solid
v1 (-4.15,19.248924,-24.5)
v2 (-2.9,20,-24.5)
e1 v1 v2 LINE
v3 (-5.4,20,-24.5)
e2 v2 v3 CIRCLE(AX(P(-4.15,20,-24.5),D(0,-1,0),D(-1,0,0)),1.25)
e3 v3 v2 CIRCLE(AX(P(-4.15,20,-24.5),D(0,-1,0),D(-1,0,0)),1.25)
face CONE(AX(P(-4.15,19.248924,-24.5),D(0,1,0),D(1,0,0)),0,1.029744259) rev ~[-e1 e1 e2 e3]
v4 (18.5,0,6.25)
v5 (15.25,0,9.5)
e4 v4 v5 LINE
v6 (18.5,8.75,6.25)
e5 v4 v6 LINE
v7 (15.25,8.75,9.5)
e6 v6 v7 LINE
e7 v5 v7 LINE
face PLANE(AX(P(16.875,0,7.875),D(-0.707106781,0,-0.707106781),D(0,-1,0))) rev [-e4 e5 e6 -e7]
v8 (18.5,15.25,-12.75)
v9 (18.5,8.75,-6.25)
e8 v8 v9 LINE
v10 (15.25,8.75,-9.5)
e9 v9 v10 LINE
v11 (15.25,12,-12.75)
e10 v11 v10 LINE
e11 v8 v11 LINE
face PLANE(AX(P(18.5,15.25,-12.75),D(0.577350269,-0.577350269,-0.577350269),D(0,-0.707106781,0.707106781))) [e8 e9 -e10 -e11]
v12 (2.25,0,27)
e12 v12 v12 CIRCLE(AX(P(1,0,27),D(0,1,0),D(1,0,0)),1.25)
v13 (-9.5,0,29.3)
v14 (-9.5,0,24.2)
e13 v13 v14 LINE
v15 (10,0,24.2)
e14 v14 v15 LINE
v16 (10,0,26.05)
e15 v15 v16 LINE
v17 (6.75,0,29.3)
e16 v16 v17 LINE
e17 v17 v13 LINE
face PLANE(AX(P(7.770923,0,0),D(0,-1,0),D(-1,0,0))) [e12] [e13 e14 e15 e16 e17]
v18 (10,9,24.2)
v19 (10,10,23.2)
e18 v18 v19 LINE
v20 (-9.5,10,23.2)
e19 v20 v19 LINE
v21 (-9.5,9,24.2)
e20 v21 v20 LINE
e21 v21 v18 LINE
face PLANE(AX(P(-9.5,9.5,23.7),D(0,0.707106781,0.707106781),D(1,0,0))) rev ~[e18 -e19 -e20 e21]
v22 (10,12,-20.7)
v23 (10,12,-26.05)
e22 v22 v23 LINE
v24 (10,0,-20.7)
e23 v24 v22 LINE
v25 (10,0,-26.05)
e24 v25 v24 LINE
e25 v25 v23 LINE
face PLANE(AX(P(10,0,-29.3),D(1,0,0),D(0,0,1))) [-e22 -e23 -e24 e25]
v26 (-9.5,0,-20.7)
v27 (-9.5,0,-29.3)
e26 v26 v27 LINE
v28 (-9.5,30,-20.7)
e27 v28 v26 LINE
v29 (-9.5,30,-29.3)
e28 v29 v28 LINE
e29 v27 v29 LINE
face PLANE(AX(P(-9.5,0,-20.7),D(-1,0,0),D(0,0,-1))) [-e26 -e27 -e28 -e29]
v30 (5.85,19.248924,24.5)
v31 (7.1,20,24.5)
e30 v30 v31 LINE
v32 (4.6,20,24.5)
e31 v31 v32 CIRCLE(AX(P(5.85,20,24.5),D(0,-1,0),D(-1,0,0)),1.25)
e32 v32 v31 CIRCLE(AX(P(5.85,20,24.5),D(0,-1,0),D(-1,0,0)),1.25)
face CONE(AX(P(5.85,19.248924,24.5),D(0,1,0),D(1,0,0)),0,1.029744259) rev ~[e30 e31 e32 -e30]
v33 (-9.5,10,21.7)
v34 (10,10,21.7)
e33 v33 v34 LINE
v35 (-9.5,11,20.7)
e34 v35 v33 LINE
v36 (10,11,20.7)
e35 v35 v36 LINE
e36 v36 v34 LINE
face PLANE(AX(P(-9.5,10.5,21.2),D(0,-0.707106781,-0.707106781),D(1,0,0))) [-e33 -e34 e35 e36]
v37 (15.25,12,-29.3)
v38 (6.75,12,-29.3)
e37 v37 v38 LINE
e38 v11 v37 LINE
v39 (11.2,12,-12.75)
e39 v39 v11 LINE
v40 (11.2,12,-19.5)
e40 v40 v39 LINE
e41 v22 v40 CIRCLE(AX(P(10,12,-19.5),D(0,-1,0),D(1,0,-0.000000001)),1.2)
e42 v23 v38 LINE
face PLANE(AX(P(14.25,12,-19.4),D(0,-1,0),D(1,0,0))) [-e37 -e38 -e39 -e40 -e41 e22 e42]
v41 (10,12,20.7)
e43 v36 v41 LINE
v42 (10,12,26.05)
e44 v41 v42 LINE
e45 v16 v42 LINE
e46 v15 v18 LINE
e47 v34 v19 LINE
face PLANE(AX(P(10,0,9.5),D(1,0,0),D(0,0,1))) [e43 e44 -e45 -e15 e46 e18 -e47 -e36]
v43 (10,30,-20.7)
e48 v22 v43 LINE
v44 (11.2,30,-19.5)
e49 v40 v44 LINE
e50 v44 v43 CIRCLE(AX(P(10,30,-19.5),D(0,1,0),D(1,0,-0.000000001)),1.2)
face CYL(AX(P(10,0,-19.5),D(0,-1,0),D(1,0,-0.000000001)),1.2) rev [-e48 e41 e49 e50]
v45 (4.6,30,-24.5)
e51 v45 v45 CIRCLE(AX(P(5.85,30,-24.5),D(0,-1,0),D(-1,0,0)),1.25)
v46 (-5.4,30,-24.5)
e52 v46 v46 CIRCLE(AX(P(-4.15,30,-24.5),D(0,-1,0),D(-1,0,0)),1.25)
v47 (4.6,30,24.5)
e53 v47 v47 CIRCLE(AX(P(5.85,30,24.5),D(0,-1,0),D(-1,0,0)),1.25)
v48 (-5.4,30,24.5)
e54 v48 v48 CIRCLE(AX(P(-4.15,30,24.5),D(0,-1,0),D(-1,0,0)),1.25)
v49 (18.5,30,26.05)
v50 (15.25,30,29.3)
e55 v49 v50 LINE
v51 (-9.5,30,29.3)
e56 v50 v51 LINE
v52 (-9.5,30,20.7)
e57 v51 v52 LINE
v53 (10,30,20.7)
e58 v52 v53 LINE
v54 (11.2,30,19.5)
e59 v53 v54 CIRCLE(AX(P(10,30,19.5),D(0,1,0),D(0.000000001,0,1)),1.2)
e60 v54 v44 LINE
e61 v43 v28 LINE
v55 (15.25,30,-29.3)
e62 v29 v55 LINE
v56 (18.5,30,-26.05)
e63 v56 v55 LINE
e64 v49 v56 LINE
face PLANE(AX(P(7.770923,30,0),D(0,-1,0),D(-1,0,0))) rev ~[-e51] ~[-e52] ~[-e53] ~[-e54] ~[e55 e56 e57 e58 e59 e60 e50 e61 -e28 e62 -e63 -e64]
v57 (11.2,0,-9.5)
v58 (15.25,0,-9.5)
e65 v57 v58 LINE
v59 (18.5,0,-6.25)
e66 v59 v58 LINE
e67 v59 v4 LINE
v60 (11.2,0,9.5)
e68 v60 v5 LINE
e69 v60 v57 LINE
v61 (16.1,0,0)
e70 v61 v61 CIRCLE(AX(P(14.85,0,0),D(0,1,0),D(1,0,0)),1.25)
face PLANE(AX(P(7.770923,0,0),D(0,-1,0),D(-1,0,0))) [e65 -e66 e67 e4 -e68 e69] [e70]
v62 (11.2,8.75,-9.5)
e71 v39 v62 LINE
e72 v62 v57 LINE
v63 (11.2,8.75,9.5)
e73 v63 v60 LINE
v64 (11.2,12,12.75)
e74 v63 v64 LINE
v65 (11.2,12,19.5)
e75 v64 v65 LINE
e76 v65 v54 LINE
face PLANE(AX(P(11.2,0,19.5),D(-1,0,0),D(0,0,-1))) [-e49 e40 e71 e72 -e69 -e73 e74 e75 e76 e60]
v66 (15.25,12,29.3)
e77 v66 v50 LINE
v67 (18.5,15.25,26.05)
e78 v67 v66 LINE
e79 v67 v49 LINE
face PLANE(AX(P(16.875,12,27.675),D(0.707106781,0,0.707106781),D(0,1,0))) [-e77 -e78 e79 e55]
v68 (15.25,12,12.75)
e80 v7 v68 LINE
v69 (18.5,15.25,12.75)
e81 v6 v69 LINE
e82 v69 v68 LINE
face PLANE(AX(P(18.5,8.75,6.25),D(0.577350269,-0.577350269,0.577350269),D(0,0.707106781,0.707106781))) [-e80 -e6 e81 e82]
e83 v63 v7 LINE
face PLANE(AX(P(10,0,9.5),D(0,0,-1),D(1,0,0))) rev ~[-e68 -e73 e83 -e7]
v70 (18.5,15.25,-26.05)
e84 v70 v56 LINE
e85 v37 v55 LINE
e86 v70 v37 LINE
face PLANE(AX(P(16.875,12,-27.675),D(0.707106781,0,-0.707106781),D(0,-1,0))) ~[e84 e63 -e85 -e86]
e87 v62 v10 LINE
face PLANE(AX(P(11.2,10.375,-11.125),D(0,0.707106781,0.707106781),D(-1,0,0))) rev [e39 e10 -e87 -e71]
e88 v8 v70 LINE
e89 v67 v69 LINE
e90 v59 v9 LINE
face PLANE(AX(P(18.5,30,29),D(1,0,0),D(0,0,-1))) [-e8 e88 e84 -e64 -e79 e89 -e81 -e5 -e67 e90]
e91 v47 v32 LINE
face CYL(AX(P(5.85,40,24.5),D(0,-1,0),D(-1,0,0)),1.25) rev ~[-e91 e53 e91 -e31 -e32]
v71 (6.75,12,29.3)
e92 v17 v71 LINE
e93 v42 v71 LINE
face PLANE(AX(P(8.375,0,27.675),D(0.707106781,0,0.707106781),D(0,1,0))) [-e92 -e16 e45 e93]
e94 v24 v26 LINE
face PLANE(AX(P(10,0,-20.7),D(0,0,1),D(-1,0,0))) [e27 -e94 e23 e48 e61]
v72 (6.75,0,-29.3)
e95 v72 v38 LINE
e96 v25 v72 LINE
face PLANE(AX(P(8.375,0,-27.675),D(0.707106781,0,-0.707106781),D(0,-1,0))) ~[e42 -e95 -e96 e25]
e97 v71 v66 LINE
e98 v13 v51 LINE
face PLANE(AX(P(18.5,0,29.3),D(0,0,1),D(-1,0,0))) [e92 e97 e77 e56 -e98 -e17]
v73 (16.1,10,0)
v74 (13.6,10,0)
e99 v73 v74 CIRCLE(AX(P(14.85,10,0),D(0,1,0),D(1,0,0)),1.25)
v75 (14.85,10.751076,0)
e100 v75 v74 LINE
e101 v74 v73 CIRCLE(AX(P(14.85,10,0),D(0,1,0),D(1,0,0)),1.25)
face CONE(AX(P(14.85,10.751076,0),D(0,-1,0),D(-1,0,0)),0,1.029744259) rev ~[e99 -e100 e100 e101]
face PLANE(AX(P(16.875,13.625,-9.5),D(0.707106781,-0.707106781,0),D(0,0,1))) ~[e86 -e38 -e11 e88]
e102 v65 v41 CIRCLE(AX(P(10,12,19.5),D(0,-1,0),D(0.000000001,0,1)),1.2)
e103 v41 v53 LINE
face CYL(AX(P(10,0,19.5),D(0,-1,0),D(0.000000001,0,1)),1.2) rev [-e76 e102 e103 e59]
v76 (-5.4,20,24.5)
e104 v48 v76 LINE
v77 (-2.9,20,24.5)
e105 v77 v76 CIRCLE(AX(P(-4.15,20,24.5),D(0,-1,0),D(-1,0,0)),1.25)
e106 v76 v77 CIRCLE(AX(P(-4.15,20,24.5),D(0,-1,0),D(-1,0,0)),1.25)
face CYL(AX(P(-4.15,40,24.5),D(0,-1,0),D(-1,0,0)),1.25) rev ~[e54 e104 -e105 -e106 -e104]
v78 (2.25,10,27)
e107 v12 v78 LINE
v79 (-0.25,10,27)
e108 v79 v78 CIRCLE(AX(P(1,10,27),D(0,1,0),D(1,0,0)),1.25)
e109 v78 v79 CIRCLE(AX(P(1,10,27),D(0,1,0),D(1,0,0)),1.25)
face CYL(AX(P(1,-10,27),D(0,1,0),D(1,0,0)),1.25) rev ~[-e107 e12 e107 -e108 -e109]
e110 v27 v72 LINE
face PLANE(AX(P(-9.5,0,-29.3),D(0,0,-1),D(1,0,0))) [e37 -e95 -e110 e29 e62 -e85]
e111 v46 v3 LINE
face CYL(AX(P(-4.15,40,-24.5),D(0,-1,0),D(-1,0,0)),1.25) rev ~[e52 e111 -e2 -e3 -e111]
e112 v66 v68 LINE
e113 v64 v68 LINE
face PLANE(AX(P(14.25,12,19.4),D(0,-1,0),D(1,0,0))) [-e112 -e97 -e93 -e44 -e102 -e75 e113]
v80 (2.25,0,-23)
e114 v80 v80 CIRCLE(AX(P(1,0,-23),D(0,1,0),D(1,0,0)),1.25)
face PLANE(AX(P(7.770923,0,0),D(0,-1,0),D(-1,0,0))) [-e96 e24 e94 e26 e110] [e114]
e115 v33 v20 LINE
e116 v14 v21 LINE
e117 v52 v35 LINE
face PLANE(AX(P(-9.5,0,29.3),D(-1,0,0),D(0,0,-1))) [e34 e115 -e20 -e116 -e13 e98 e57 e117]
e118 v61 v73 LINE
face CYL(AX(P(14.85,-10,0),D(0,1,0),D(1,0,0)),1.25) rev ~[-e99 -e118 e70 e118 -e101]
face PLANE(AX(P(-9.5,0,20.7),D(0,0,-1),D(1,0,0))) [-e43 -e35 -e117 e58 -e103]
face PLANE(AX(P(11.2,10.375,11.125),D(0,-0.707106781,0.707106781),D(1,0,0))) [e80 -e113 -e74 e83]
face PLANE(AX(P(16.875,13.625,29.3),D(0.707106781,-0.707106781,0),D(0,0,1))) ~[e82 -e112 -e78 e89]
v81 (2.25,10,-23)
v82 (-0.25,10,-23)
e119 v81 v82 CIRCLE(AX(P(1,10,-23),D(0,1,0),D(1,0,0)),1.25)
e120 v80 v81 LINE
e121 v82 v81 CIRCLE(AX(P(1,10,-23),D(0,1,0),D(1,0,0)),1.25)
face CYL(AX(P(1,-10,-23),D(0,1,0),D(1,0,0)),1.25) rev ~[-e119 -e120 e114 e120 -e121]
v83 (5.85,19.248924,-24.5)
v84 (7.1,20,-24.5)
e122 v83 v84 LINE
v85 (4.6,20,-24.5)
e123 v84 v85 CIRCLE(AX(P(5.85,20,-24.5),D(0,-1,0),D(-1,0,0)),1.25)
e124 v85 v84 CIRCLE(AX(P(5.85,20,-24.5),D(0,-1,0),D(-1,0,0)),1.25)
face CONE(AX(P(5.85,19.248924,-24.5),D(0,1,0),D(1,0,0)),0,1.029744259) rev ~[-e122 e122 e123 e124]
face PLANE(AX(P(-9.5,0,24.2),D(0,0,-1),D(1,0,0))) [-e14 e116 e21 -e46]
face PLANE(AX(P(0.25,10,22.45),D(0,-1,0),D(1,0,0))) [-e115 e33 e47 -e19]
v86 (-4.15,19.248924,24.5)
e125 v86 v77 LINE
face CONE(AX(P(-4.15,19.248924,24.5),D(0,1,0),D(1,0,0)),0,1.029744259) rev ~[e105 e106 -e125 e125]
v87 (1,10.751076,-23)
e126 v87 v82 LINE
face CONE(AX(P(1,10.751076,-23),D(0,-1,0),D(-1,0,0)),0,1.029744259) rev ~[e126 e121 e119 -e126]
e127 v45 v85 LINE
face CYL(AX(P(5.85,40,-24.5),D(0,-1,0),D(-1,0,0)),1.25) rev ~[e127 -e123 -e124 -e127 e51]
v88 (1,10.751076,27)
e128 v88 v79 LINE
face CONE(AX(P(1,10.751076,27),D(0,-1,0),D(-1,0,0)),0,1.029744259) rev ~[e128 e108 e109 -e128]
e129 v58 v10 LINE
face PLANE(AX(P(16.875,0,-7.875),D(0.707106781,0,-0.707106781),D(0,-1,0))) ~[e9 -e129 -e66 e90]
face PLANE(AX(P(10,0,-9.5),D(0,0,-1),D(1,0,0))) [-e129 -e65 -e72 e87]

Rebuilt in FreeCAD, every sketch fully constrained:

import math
import FreeCAD as App
import Part
import Sketcher
from FreeCAD import Vector
Q = App.Units.Quantity


def edges_at(feature, points):
    """Names of the edges that pass closest to the given points."""
    edges = feature.Shape.Edges
    near = lambda p: min(range(len(edges)), key=lambda i: edges[i].distToShape(Part.Vertex(*p))[0])
    return sorted({f"Edge{near(p) + 1}" for p in points})


def add_polygon(sketch, points):
    """Adds a closed chain of lines whose ends are joined by coincident constraints."""
    first, n = sketch.GeometryCount, len(points)
    for a, b in zip(points, points[1:] + points[:1]):
        sketch.addGeometry(Part.LineSegment(App.Vector(*a, 0), App.Vector(*b, 0)), False)
    for i in range(n):
        sketch.addConstraint(Sketcher.Constraint("Coincident", first + i, 2, first + (i + 1) % n, 1))

doc = App.newDocument("Part")
body = doc.addObject("PartDesign::Body", "Body")

# Sketch on XZ plane
sketch1 = body.newObject("Sketcher::SketchObject", "Sketch")
sketch1.AttachmentSupport = (doc.getObject("XZ_Plane"), [""])
sketch1.MapMode = "FlatFace"
sketch1.addGeometry([
    Part.LineSegment(Vector(-9.5, -29.3, 0), Vector(-9.5, -20.7, 0)),  # 0
    Part.LineSegment(Vector(-9.5, -20.7, 0), Vector(10, -20.7, 0)),  # 1
    Part.ArcOfCircle(Part.Circle(Vector(10, -19.5, 0), Vector(0, 0, 1), 1.2), math.radians(-90), math.radians(0)),  # 2
    Part.LineSegment(Vector(11.2, -19.5, 0), Vector(11.2, 19.5, 0)),  # 3
    Part.ArcOfCircle(Part.Circle(Vector(10, 19.5, 0), Vector(0, 0, 1), 1.2), math.radians(0), math.radians(90)),  # 4
    Part.LineSegment(Vector(10, 20.7, 0), Vector(-9.5, 20.7, 0)),  # 5
    Part.LineSegment(Vector(-9.5, 20.7, 0), Vector(-9.5, 29.3, 0)),  # 6
    Part.LineSegment(Vector(-9.5, 29.3, 0), Vector(18.5, 29.3, 0)),  # 7
    Part.LineSegment(Vector(18.5, 29.3, 0), Vector(18.5, -29.3, 0)),  # 8
    Part.LineSegment(Vector(18.5, -29.3, 0), Vector(-9.5, -29.3, 0)),  # 9
], False)
sketch1.addConstraint([
    Sketcher.Constraint("Coincident", 0, 2, 1, 1),
    Sketcher.Constraint("Tangent", 1, 2, 2, 1),
    Sketcher.Constraint("Tangent", 2, 2, 3, 1),
    Sketcher.Constraint("Tangent", 3, 2, 4, 1),
    Sketcher.Constraint("Tangent", 4, 2, 5, 1),
    Sketcher.Constraint("Coincident", 5, 2, 6, 1),
    Sketcher.Constraint("Coincident", 6, 2, 7, 1),
    Sketcher.Constraint("Coincident", 7, 2, 8, 1),
    Sketcher.Constraint("Coincident", 8, 2, 9, 1),
    Sketcher.Constraint("Coincident", 9, 2, 0, 1),
    Sketcher.Constraint("Vertical", 0),
    Sketcher.Constraint("Horizontal", 1),
    Sketcher.Constraint("Vertical", 3),
    Sketcher.Constraint("Horizontal", 5),
    Sketcher.Constraint("Vertical", 6),
    Sketcher.Constraint("Horizontal", 7),
    Sketcher.Constraint("Vertical", 8),
    Sketcher.Constraint("Horizontal", 9),
    Sketcher.Constraint("Equal", 2, 4),
    Sketcher.Constraint("Symmetric", 0, 2, 5, 2, -1),
    Sketcher.Constraint("Equal", 0, 6),
    Sketcher.Constraint("Radius", 2, Q("1.2 mm")),
    Sketcher.Constraint("DistanceX", 7, 1, 7, 2, Q("28 mm")),
    Sketcher.Constraint("DistanceY", 3, 1, 3, 2, Q("39 mm")),
    Sketcher.Constraint("DistanceX", 1, 1, 1, 2, Q("19.5 mm")),
    Sketcher.Constraint("DistanceY", 0, 1, 0, 2, Q("8.6 mm")),
    Sketcher.Constraint("DistanceX", -1, 1, 2, 3, Q("10 mm")),
])
pad1 = body.newObject("PartDesign::Pad", "Pad")
pad1.Profile = sketch1
pad1.Length = 30
pad1.Reversed = True

# Sketch on XZ plane
sketch2 = body.newObject("Sketcher::SketchObject", "Sketch001")
sketch2.AttachmentSupport = (doc.getObject("XZ_Plane"), [""])
sketch2.MapMode = "FlatFace"
add_polygon(sketch2, [(10, 29), (10, 10), (18, 10), (18, 29)])  # lines 0-3
add_polygon(sketch2, [(10, -10), (10, -29), (18, -29), (18, -10)])  # lines 4-7
sketch2.addConstraint([
    Sketcher.Constraint("Vertical", 0),
    Sketcher.Constraint("Horizontal", 1),
    Sketcher.Constraint("Vertical", 2),
    Sketcher.Constraint("Horizontal", 3),
    Sketcher.Constraint("Vertical", 4),
    Sketcher.Constraint("Horizontal", 5),
    Sketcher.Constraint("Vertical", 6),
    Sketcher.Constraint("Horizontal", 7),
    Sketcher.Constraint("Symmetric", 3, 2, 4, 2, -1),
    Sketcher.Constraint("Symmetric", 1, 2, 6, 2, -1),
    Sketcher.Constraint("DistanceX", 1, 1, 1, 2, Q("8.5 mm")),
    Sketcher.Constraint("DistanceY", 0, 2, 0, 1, Q("19.8 mm")),
    Sketcher.Constraint("DistanceX", -1, 1, 0, 2, Q("10 mm")),
    Sketcher.Constraint("DistanceY", 6, 2, 1, 2, Q("19 mm")),
])
pocket1 = body.newObject("PartDesign::Pocket", "Pocket")
pocket1.Profile = sketch2
pocket1.Length = 12

# Sketch on XZ plane
sketch3 = body.newObject("Sketcher::SketchObject", "Sketch002")
sketch3.AttachmentSupport = (doc.getObject("XZ_Plane"), [""])
sketch3.MapMode = "FlatFace"
sketch3.addGeometry([
    Part.Circle(Vector(1, -23, 0), Vector(0, 0, 1), 1.2),
    Part.Circle(Vector(14.8, 0, 0), Vector(0, 0, 1), 1.2),
    Part.Circle(Vector(1, 27, 0), Vector(0, 0, 1), 1.2),
], False)
sketch3.addConstraint([
    Sketcher.Constraint("Equal", 0, 1),
    Sketcher.Constraint("Equal", 1, 2),
    Sketcher.Constraint("PointOnObject", 1, 3, -1),
    Sketcher.Constraint("Vertical", 0, 3, 2, 3),
    Sketcher.Constraint("Diameter", 0, Q("2.5 mm")),
    Sketcher.Constraint("DistanceX", -1, 1, 0, 3, Q("1 mm")),
    Sketcher.Constraint("DistanceY", 0, 3, -1, 1, Q("23 mm")),
    Sketcher.Constraint("DistanceY", -1, 1, 2, 3, Q("27 mm")),
    Sketcher.Constraint("DistanceX", -1, 1, 1, 3, Q("14.85 mm")),
])
doc.recompute()
hole = body.newObject("PartDesign::Hole", "Hole")
hole.Profile = sketch3
hole.ThreadType = "None"
hole.Diameter = 2.5
hole.DepthType = "Dimension"
hole.Depth = 10
hole.DrillPoint = "Angled"
hole.DrillPointAngle = 118

# Sketch on XZ plane
sketch4 = body.newObject("Sketcher::SketchObject", "Sketch003")
sketch4.AttachmentSupport = (doc.getObject("XZ_Plane"), [""])
sketch4.MapMode = "FlatFace"
sketch4.AttachmentOffset = App.Placement(Vector(0, 0, -30), App.Rotation())
add_polygon(sketch4, [(-10, 21), (-10, 29), (18, 29), (18, 21)])  # lines 0-3
add_polygon(sketch4, [(-10, -29), (-10, -21), (18, -21), (18, -29)])  # lines 4-7
sketch4.addConstraint([
    Sketcher.Constraint("Vertical", 0),
    Sketcher.Constraint("Horizontal", 1),
    Sketcher.Constraint("Vertical", 2),
    Sketcher.Constraint("Horizontal", 3),
    Sketcher.Constraint("Vertical", 4),
    Sketcher.Constraint("Horizontal", 5),
    Sketcher.Constraint("Vertical", 6),
    Sketcher.Constraint("Horizontal", 7),
    Sketcher.Constraint("Symmetric", 3, 2, 4, 2, -1),
    Sketcher.Constraint("Symmetric", 1, 2, 6, 2, -1),
    Sketcher.Constraint("DistanceX", 1, 1, 1, 2, Q("28 mm")),
    Sketcher.Constraint("DistanceY", 0, 1, 0, 2, Q("8.3 mm")),
    Sketcher.Constraint("DistanceY", -1, 1, 0, 2, Q("29 mm")),
    Sketcher.Constraint("DistanceX", 0, 2, -1, 1, Q("9.5 mm")),
])
pad2 = body.newObject("PartDesign::Pad", "Pad001")
pad2.Profile = sketch4
pad2.Length = 18
doc.recompute()

chamfer = body.newObject("PartDesign::Chamfer", "Chamfer")
chamfer.Base = (pad2, edges_at(pad2, [
    (18.5, 21, -29.3),
    (18.5, 21, 29.3),
    (14.85, 12, 9.5),
    (18.5, 6, 9.5),
    (18.5, 12, 19.4),
    (10, 6, 29.3),
    (10, 6, -29.3),
    (14.85, 12, -9.5),
    (18.5, 12, -19.4),
    (18.5, 6, -9.5),
]))
chamfer.Size = 3.25

# Sketch on XZ plane
sketch5 = body.newObject("Sketcher::SketchObject", "Sketch004")
sketch5.AttachmentSupport = (doc.getObject("XZ_Plane"), [""])
sketch5.MapMode = "FlatFace"
sketch5.AttachmentOffset = App.Placement(Vector(0, 0, -30), App.Rotation())
sketch5.addGeometry([
    Part.Circle(Vector(-4.2, -24.5, 0), Vector(0, 0, 1), 1.2),
    Part.Circle(Vector(-4.2, 24.5, 0), Vector(0, 0, 1), 1.2),
    Part.Circle(Vector(5.8, 24.5, 0), Vector(0, 0, 1), 1.2),
    Part.Circle(Vector(5.8, -24.5, 0), Vector(0, 0, 1), 1.2),
], False)
sketch5.addConstraint([
    Sketcher.Constraint("Equal", 0, 1),
    Sketcher.Constraint("Equal", 1, 2),
    Sketcher.Constraint("Equal", 2, 3),
    Sketcher.Constraint("Symmetric", 0, 3, 1, 3, -1),
    Sketcher.Constraint("Symmetric", 2, 3, 3, 3, -1),
    Sketcher.Constraint("Horizontal", 1, 3, 2, 3),
    Sketcher.Constraint("Diameter", 0, Q("2.5 mm")),
    Sketcher.Constraint("DistanceY", 0, 3, 1, 3, Q("49 mm")),
    Sketcher.Constraint("DistanceX", 1, 3, 2, 3, Q("10 mm")),
    Sketcher.Constraint("DistanceX", 0, 3, -1, 1, Q("4.15 mm")),
])
doc.recompute()
hole2 = body.newObject("PartDesign::Hole", "Hole001")
hole2.Profile = sketch5
hole2.ThreadType = "None"
hole2.Diameter = 2.5
hole2.DepthType = "Dimension"
hole2.Depth = 10
hole2.DrillPoint = "Angled"
hole2.DrillPointAngle = 118
hole2.Reversed = True

# Sketch on XZ plane
sketch6 = body.newObject("Sketcher::SketchObject", "Sketch005")
sketch6.AttachmentSupport = (doc.getObject("XZ_Plane"), [""])
sketch6.MapMode = "FlatFace"
add_polygon(sketch6, [(-9.5, 24.2), (-9.5, 20.7), (10, 20.7), (10, 24.2)])  # lines 0-3
sketch6.addConstraint([
    Sketcher.Constraint("Vertical", 0),
    Sketcher.Constraint("Horizontal", 1),
    Sketcher.Constraint("Vertical", 2),
    Sketcher.Constraint("Horizontal", 3),
    Sketcher.Constraint("DistanceX", 1, 1, 1, 2, Q("19.5 mm")),
    Sketcher.Constraint("DistanceY", 0, 2, 0, 1, Q("3.5 mm")),
    Sketcher.Constraint("DistanceX", -1, 1, 1, 2, Q("10 mm")),
    Sketcher.Constraint("DistanceY", -1, 1, 0, 2, Q("20.7 mm")),
])
pocket2 = body.newObject("PartDesign::Pocket", "Pocket001")
pocket2.Profile = sketch6
pocket2.Length = 10
doc.recompute()

chamfer2 = body.newObject("PartDesign::Chamfer", "Chamfer001")
chamfer2.Base = (pocket2, edges_at(pocket2, [(0.25, 10, 24.2), (0.25, 10, 20.7)]))
chamfer2.Size = 1

doc.recompute()
